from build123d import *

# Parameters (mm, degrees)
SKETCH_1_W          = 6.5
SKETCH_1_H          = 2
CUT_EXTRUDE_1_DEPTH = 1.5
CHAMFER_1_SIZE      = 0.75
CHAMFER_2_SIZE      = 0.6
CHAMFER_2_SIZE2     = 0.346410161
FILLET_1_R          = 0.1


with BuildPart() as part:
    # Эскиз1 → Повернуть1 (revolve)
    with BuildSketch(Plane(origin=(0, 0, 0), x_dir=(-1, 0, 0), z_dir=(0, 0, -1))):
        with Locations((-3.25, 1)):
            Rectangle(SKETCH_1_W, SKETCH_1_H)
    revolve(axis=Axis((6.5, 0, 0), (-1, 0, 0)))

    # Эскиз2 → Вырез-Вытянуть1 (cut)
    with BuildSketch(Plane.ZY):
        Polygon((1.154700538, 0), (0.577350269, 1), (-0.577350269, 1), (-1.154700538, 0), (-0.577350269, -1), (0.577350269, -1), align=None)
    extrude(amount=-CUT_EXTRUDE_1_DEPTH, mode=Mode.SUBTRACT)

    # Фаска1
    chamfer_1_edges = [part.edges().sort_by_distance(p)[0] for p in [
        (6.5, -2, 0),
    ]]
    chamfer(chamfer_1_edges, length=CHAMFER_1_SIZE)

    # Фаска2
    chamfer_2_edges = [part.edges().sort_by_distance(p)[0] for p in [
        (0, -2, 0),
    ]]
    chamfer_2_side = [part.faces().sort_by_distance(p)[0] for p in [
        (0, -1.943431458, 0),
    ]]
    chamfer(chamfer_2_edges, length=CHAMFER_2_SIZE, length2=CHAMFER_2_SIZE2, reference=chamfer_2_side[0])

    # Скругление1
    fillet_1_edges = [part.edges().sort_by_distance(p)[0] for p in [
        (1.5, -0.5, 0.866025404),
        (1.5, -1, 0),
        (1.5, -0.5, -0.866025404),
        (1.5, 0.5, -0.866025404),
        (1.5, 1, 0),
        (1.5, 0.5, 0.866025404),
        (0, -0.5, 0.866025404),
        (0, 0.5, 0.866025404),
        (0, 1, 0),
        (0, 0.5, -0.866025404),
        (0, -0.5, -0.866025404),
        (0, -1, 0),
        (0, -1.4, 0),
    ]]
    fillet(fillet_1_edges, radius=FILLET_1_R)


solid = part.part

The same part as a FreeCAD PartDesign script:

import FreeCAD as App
import Part
import Sketcher
Q = App.Units.Quantity


def edges_at(feature, points):
    """Names of the edges that pass closest to the given points."""
    edges = feature.Shape.Edges
    near = lambda p: min(range(len(edges)), key=lambda i: edges[i].distToShape(Part.Vertex(*p))[0])
    return sorted({f"Edge{near(p) + 1}" for p in points})


def add_polygon(sketch, points):
    """Adds a closed chain of lines whose ends are joined by coincident constraints."""
    first, n = sketch.GeometryCount, len(points)
    for a, b in zip(points, points[1:] + points[:1]):
        sketch.addGeometry(Part.LineSegment(App.Vector(*a, 0), App.Vector(*b, 0)), False)
    for i in range(n):
        sketch.addConstraint(Sketcher.Constraint("Coincident", first + i, 2, first + (i + 1) % n, 1))

doc = App.newDocument("Part")
body = doc.addObject("PartDesign::Body", "Body")

sketch1 = body.newObject("Sketcher::SketchObject", "Sketch")
sketch1.AttachmentSupport = (doc.getObject("XY_Plane"), [""])
sketch1.MapMode = "FlatFace"
add_polygon(sketch1, [(6.5, 2), (6.5, 0), (0, 0), (0, 2)])
sketch1.addConstraint(Sketcher.Constraint("Vertical", 0))
sketch1.addConstraint(Sketcher.Constraint("Horizontal", 1))
sketch1.addConstraint(Sketcher.Constraint("Vertical", 2))
sketch1.addConstraint(Sketcher.Constraint("Horizontal", 3))
sketch1.addConstraint(Sketcher.Constraint("Coincident", 1, 2, -1, 1))
sketch1.addConstraint(Sketcher.Constraint("DistanceY", 0, 2, 0, 1, Q("2 mm")))
sketch1.addConstraint(Sketcher.Constraint("DistanceX", 1, 2, 1, 1, Q("6.5 mm")))
revolution = body.newObject("PartDesign::Revolution", "Revolution")
revolution.Profile = sketch1
revolution.ReferenceAxis = (sketch1, ["H_Axis"])
revolution.Angle = 360

sketch2 = body.newObject("Sketcher::SketchObject", "Sketch001")
sketch2.AttachmentSupport = (doc.getObject("YZ_Plane"), [""])
sketch2.MapMode = "FlatFace"
add_polygon(sketch2, [(0, 1.2), (1, 0.6), (1, -0.6), (0, -1.2), (-1, -0.6), (-1, 0.6)])
sketch2.addConstraint(Sketcher.Constraint("Vertical", 1))
sketch2.addConstraint(Sketcher.Constraint("Vertical", 4))
sketch2.addConstraint(Sketcher.Constraint("Symmetric", 0, 2, 3, 2, -1, 1))
sketch2.addConstraint(Sketcher.Constraint("Symmetric", 2, 2, 5, 2, -1, 1))
sketch2.addConstraint(Sketcher.Constraint("PointOnObject", 2, 2, -2))
sketch2.addConstraint(Sketcher.Constraint("Parallel", 2, 5))
sketch2.addConstraint(Sketcher.Constraint("Horizontal", 1, 2, 3, 2))
sketch2.addConstraint(Sketcher.Constraint("Angle", 0, Q("-30 deg")))
sketch2.addConstraint(Sketcher.Constraint("DistanceX", -1, 1, 0, 2, Q("1 mm")))
sketch2.addConstraint(Sketcher.Constraint("DistanceY", 1, 2, 1, 1, Q("1.154701 mm")))
pocket1 = body.newObject("PartDesign::Pocket", "Pocket")
pocket1.Profile = sketch2
pocket1.Length = 1.5
pocket1.Reversed = True
doc.recompute()

chamfer = body.newObject("PartDesign::Chamfer", "Chamfer")
chamfer.Base = (pocket1, edges_at(pocket1, [(6.5, -2, 0)]))
chamfer.Size = 0.75
doc.recompute()

chamfer2 = body.newObject("PartDesign::Chamfer", "Chamfer001")
chamfer2.Base = (chamfer, edges_at(chamfer, [(0, -2, 0)]))
chamfer2.ChamferType = "Two distances"
chamfer2.Size = 0.6
chamfer2.Size2 = 0.34641
chamfer2.FlipDirection = True
doc.recompute()

fillet = body.newObject("PartDesign::Fillet", "Fillet")
fillet.Base = (chamfer2, edges_at(chamfer2, [
    (1.5, -0.5, 0.866),
    (1.5, -1, 0),
    (1.5, -0.5, -0.866),
    (1.5, 0.5, -0.866),
    (1.5, 1, 0),
    (1.5, 0.5, 0.866),
    (0, -0.5, 0.866),
    (0, 0.5, 0.866),
    (0, 1, 0),
    (0, 0.5, -0.866),
    (0, -0.5, -0.866),
    (0, -1, 0),
    (0, -1.4, 0),
]))
fillet.Radius = 0.1

doc.recompute()
